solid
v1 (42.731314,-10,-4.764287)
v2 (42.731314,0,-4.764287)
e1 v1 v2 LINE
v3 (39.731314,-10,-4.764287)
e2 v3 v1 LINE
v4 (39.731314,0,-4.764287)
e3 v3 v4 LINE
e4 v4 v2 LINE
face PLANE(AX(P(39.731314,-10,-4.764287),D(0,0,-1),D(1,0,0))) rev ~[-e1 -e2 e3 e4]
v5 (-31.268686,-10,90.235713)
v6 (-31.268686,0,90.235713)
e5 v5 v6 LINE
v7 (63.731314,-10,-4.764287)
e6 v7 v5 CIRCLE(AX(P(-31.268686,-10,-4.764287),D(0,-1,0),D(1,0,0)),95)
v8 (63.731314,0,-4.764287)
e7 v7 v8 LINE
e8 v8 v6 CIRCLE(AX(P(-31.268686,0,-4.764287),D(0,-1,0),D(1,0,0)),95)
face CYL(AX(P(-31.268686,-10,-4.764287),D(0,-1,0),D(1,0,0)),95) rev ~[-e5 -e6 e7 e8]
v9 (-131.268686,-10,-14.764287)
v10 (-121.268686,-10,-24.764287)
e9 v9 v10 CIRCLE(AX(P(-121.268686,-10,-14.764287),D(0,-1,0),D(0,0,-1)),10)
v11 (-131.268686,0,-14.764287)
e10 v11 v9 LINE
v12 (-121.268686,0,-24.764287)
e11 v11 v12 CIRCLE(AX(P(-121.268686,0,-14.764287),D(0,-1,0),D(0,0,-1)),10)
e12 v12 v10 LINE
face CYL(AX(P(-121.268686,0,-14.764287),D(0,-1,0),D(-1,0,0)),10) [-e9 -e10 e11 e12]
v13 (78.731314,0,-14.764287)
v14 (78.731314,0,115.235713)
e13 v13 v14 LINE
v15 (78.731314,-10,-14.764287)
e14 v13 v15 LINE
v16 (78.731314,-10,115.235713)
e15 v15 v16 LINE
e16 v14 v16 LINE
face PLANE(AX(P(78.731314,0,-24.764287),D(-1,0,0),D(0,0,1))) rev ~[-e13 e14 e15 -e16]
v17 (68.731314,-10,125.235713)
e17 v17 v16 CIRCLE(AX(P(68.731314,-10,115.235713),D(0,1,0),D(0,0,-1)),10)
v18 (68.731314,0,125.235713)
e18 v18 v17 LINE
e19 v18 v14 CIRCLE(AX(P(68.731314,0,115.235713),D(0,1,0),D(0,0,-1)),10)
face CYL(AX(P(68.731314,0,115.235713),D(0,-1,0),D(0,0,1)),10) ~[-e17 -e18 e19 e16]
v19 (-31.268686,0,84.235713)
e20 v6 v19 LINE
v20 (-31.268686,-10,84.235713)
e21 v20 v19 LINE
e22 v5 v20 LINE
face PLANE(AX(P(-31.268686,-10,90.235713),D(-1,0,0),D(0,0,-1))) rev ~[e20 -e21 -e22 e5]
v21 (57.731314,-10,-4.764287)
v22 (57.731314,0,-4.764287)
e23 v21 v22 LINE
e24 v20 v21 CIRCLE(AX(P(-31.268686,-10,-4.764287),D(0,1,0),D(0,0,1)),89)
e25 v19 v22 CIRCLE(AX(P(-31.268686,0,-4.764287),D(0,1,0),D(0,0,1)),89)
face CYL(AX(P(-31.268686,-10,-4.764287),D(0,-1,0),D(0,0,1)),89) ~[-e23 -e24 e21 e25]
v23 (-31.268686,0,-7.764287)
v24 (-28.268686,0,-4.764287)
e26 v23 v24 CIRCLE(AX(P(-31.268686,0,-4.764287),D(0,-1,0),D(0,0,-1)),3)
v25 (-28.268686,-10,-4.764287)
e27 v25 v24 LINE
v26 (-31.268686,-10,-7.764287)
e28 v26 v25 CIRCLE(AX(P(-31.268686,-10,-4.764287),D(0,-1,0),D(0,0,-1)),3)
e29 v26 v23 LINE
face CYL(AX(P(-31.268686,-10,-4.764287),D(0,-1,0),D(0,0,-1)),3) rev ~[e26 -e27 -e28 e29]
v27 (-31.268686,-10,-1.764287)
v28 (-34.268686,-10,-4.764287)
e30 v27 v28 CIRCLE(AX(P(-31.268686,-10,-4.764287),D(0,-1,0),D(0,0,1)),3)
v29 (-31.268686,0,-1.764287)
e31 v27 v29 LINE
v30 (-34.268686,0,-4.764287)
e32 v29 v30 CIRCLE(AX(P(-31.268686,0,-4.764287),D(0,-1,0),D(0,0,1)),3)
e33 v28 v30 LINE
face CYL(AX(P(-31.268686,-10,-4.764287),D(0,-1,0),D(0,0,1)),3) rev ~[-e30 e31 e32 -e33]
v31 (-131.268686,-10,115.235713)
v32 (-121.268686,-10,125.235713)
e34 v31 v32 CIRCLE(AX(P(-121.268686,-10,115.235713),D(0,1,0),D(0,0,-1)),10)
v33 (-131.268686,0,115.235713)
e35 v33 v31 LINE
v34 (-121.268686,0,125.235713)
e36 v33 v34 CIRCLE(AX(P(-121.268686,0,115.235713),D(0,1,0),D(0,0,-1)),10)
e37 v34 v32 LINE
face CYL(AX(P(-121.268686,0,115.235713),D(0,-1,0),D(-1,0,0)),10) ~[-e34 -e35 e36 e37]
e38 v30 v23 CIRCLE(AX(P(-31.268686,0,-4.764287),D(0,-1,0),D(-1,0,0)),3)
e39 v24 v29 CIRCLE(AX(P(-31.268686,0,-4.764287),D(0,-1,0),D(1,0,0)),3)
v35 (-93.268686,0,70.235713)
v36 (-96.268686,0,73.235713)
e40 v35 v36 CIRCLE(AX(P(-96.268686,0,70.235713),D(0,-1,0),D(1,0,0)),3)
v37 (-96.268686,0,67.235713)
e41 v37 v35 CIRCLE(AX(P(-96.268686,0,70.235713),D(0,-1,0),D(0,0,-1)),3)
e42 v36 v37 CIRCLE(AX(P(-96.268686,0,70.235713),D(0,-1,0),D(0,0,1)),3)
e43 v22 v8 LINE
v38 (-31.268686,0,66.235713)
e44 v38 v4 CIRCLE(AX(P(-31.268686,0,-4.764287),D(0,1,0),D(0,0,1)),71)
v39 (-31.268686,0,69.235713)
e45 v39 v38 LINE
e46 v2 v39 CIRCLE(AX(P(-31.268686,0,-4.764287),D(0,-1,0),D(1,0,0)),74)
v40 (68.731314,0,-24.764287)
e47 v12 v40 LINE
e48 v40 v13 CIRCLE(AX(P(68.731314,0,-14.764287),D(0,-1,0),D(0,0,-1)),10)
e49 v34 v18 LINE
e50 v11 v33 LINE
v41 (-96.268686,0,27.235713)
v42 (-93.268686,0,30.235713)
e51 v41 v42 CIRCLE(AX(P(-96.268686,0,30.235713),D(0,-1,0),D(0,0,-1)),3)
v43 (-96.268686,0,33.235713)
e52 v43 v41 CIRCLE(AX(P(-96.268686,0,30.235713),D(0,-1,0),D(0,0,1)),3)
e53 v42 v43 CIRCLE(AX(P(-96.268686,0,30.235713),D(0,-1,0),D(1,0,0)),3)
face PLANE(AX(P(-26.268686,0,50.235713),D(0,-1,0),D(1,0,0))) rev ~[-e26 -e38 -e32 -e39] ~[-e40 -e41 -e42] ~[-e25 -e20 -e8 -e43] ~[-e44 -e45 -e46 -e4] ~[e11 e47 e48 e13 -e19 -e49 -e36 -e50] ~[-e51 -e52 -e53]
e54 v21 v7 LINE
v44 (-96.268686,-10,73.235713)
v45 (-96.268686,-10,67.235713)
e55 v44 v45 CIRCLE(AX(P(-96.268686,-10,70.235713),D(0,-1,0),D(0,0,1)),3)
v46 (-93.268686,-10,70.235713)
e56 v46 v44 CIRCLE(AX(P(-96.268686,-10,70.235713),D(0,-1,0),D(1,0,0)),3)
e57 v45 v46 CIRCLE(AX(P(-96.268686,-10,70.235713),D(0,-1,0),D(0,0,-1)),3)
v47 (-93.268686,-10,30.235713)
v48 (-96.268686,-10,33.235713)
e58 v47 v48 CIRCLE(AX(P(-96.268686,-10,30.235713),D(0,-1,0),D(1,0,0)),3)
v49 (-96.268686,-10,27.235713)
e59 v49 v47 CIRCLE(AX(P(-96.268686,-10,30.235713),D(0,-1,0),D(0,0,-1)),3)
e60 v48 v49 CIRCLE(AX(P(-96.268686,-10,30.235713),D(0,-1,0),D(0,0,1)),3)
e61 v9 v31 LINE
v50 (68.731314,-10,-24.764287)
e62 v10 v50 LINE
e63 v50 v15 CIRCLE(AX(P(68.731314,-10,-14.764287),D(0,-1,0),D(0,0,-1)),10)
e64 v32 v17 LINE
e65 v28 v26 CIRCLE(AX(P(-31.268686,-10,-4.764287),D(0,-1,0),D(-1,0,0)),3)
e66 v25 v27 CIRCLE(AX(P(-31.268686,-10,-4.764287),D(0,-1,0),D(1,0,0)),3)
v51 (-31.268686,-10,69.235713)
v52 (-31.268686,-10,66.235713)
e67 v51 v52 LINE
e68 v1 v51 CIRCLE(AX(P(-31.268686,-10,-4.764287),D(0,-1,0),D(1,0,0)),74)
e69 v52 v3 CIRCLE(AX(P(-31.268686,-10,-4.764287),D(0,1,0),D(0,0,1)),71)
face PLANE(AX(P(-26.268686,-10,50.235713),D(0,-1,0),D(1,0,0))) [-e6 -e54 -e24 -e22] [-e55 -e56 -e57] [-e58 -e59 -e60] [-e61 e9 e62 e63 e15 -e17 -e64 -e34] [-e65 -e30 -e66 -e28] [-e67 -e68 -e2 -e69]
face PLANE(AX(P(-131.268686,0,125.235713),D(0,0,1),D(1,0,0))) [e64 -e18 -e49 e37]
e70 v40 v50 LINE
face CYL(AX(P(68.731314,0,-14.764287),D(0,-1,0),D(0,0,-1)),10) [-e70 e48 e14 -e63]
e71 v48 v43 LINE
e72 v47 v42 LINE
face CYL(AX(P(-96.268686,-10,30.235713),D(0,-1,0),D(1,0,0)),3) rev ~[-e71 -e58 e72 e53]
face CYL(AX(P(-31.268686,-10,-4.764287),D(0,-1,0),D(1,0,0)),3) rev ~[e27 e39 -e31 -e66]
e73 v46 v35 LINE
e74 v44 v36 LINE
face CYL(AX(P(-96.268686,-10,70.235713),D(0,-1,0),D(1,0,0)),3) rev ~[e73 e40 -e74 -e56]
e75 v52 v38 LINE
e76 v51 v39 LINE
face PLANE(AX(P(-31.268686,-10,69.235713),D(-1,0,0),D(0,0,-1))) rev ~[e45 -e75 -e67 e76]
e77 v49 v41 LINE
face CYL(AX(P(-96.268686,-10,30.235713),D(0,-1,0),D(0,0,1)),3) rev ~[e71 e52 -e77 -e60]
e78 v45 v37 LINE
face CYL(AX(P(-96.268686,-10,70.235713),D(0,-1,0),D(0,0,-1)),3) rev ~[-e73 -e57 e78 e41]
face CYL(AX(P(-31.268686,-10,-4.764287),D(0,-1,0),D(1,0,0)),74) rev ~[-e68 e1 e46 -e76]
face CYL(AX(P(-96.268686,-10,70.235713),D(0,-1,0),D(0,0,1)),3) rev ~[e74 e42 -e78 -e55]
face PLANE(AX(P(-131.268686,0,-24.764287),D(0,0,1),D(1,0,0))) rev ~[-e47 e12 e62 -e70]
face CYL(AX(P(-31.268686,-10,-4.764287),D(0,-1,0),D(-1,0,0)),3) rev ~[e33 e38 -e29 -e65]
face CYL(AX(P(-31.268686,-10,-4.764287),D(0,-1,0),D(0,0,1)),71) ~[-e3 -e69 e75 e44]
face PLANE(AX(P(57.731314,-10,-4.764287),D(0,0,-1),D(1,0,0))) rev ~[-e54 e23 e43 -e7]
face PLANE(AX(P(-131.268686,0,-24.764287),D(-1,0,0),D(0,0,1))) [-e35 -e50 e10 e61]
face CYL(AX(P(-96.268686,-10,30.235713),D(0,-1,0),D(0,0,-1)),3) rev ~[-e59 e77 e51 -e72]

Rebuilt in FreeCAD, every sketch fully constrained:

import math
import FreeCAD as App
import Part
import Sketcher
from FreeCAD import Vector
Q = App.Units.Quantity


def edges_at(feature, points):
    """Names of the edges that pass closest to the given points."""
    edges = feature.Shape.Edges
    near = lambda p: min(range(len(edges)), key=lambda i: edges[i].distToShape(Part.Vertex(*p))[0])
    return sorted({f"Edge{near(p) + 1}" for p in points})

doc = App.newDocument("Part")
params = doc.addObject("Spreadsheet::Sheet", "Params")
for row, (alias, value) in enumerate([
    ("sketch1_width", "210 mm"),
    ("sketch1_height", "150 mm"),
    ("pad1_length", "10 mm"),
    ("fillet_radius", "10 mm"),
    ("fillet2_radius", "10 mm"),
    ("fillet3_radius", "10 mm"),
    ("sketch2_radius", "3 mm"),
    ("sketch2_radius2", "71 mm"),
    ("sketch2_radius3", "74 mm"),
    ("sketch2_radius4", "89 mm"),
    ("sketch2_radius5", "95 mm"),
    ("pocket1_length", "10 mm"),
], start=1):
    params.set(f"A{row}", alias)
    params.set(f"B{row}", "=" + value)
    params.setAlias(f"B{row}", alias)

body = doc.addObject("PartDesign::Body", "Body")

# Sketch on XZ plane
sketch1 = body.newObject("Sketcher::SketchObject", "Sketch")
sketch1.AttachmentSupport = (doc.getObject("XZ_Plane"), [""])
sketch1.MapMode = "FlatFace"
sketch1.addGeometry(Part.LineSegment(Vector(-131, 125, 0), Vector(-131, -25, 0)), False)
sketch1.addGeometry(Part.LineSegment(Vector(-131, -25, 0), Vector(79, -25, 0)), False)
sketch1.addGeometry(Part.LineSegment(Vector(79, -25, 0), Vector(79, 125, 0)), False)
sketch1.addGeometry(Part.LineSegment(Vector(79, 125, 0), Vector(-131, 125, 0)), False)
sketch1.addConstraint(Sketcher.Constraint("Coincident", 0, 2, 1, 1))
sketch1.addConstraint(Sketcher.Constraint("Coincident", 1, 2, 2, 1))
sketch1.addConstraint(Sketcher.Constraint("Coincident", 2, 2, 3, 1))
sketch1.addConstraint(Sketcher.Constraint("Coincident", 3, 2, 0, 1))
sketch1.addConstraint(Sketcher.Constraint("Vertical", 0))
sketch1.addConstraint(Sketcher.Constraint("Horizontal", 1))
sketch1.addConstraint(Sketcher.Constraint("Vertical", 2))
sketch1.addConstraint(Sketcher.Constraint("Horizontal", 3))
sketch1.addConstraint(Sketcher.Constraint("DistanceX", 1, 1, 1, 2, Q("210 mm")))
sketch1.addConstraint(Sketcher.Constraint("DistanceY", 0, 2, 0, 1, Q("150 mm")))
sketch1.addConstraint(Sketcher.Constraint("DistanceX", 0, 2, -1, 1, Q("131.268686 mm")))
sketch1.addConstraint(Sketcher.Constraint("DistanceY", 0, 2, -1, 1, Q("24.764287 mm")))
sketch1.setExpression("Constraints[8]", "Params.sketch1_width")
sketch1.setExpression("Constraints[9]", "Params.sketch1_height")
pad1 = body.newObject("PartDesign::Pad", "Pad")
pad1.Profile = sketch1
pad1.setExpression("Length", "Params.pad1_length")
doc.recompute()

fillet = body.newObject("PartDesign::Fillet", "Fillet")
fillet.Base = (pad1, edges_at(pad1, [(-131.269, -5, 125.236)]))
fillet.setExpression("Radius", "Params.fillet_radius")
doc.recompute()

fillet2 = body.newObject("PartDesign::Fillet", "Fillet001")
fillet2.Base = (fillet, edges_at(fillet, [(-131.269, -5, -24.764)]))
fillet2.setExpression("Radius", "Params.fillet2_radius")
doc.recompute()

fillet3 = body.newObject("PartDesign::Fillet", "Fillet002")
fillet3.Base = (fillet2, edges_at(fillet2, [(78.731, -5, -24.764), (78.731, -5, 125.236)]))
fillet3.setExpression("Radius", "Params.fillet3_radius")

# Sketch on XZ plane
sketch2 = body.newObject("Sketcher::SketchObject", "Sketch001")
sketch2.AttachmentSupport = (doc.getObject("XZ_Plane"), [""])
sketch2.MapMode = "FlatFace"
sketch2.AttachmentOffset = App.Placement(Vector(0, 0, 10), App.Rotation())
sketch2.addGeometry(Part.ArcOfCircle(Part.Circle(Vector(-31.3, -4.8, 0), Vector(0, 0, 1), 3), math.radians(90), math.radians(180)), False)
sketch2.addGeometry(Part.ArcOfCircle(Part.Circle(Vector(-31.3, -4.8, 0), Vector(0, 0, 1), 3), math.radians(180), math.radians(270)), False)
sketch2.addGeometry(Part.ArcOfCircle(Part.Circle(Vector(-31.3, -4.8, 0), Vector(0, 0, 1), 3), math.radians(-90), math.radians(0)), False)
sketch2.addGeometry(Part.ArcOfCircle(Part.Circle(Vector(-31.3, -4.8, 0), Vector(0, 0, 1), 3), math.radians(0), math.radians(90)), False)
sketch2.addGeometry(Part.ArcOfCircle(Part.Circle(Vector(-31.3, -4.8, 0), Vector(0, 0, 1), 71), math.radians(0), math.radians(90)), False)
sketch2.addGeometry(Part.LineSegment(Vector(39.7, -4.8, 0), Vector(42.7, -4.8, 0)), False)
sketch2.addGeometry(Part.ArcOfCircle(Part.Circle(Vector(-31.3, -4.8, 0), Vector(0, 0, 1), 74), math.radians(0), math.radians(90)), False)
sketch2.addGeometry(Part.LineSegment(Vector(-31.3, 69.2, 0), Vector(-31.3, 66.2, 0)), False)
sketch2.addGeometry(Part.ArcOfCircle(Part.Circle(Vector(-31.3, -4.8, 0), Vector(0, 0, 1), 89), math.radians(0), math.radians(90)), False)
sketch2.addGeometry(Part.LineSegment(Vector(57.7, -4.8, 0), Vector(63.7, -4.8, 0)), False)
sketch2.addGeometry(Part.ArcOfCircle(Part.Circle(Vector(-31.3, -4.8, 0), Vector(0, 0, 1), 95), math.radians(0), math.radians(90)), False)
sketch2.addGeometry(Part.LineSegment(Vector(-31.3, 90.2, 0), Vector(-31.3, 84.2, 0)), False)
sketch2.addGeometry(Part.ArcOfCircle(Part.Circle(Vector(-96.3, 70.2, 0), Vector(0, 0, 1), 3), math.radians(90), math.radians(270)), False)
sketch2.addGeometry(Part.ArcOfCircle(Part.Circle(Vector(-96.3, 70.2, 0), Vector(0, 0, 1), 3), math.radians(-90), math.radians(0)), False)
sketch2.addGeometry(Part.ArcOfCircle(Part.Circle(Vector(-96.3, 70.2, 0), Vector(0, 0, 1), 3), math.radians(0), math.radians(90)), False)
sketch2.addGeometry(Part.ArcOfCircle(Part.Circle(Vector(-96.3, 30.2, 0), Vector(0, 0, 1), 3), math.radians(90), math.radians(270)), False)
sketch2.addGeometry(Part.ArcOfCircle(Part.Circle(Vector(-96.3, 30.2, 0), Vector(0, 0, 1), 3), math.radians(-90), math.radians(0)), False)
sketch2.addGeometry(Part.ArcOfCircle(Part.Circle(Vector(-96.3, 30.2, 0), Vector(0, 0, 1), 3), math.radians(0), math.radians(90)), False)
sketch2.addConstraint(Sketcher.Constraint("Tangent", 0, 2, 1, 1))
sketch2.addConstraint(Sketcher.Constraint("Tangent", 1, 2, 2, 1))
sketch2.addConstraint(Sketcher.Constraint("Tangent", 2, 2, 3, 1))
sketch2.addConstraint(Sketcher.Constraint("Tangent", 3, 2, 0, 1))
sketch2.addConstraint(Sketcher.Constraint("Coincident", 4, 1, 5, 1))
sketch2.addConstraint(Sketcher.Constraint("Coincident", 5, 2, 6, 1))
sketch2.addConstraint(Sketcher.Constraint("Coincident", 6, 2, 7, 1))
sketch2.addConstraint(Sketcher.Constraint("Coincident", 7, 2, 4, 2))
sketch2.addConstraint(Sketcher.Constraint("Coincident", 8, 1, 9, 1))
sketch2.addConstraint(Sketcher.Constraint("Coincident", 9, 2, 10, 1))
sketch2.addConstraint(Sketcher.Constraint("Coincident", 10, 2, 11, 1))
sketch2.addConstraint(Sketcher.Constraint("Coincident", 11, 2, 8, 2))
sketch2.addConstraint(Sketcher.Constraint("Tangent", 12, 2, 13, 1))
sketch2.addConstraint(Sketcher.Constraint("Tangent", 13, 2, 14, 1))
sketch2.addConstraint(Sketcher.Constraint("Tangent", 14, 2, 12, 1))
sketch2.addConstraint(Sketcher.Constraint("Tangent", 15, 2, 16, 1))
sketch2.addConstraint(Sketcher.Constraint("Tangent", 16, 2, 17, 1))
sketch2.addConstraint(Sketcher.Constraint("Tangent", 17, 2, 15, 1))
sketch2.addConstraint(Sketcher.Constraint("Horizontal", 5))
sketch2.addConstraint(Sketcher.Constraint("Vertical", 7))
sketch2.addConstraint(Sketcher.Constraint("Horizontal", 9))
sketch2.addConstraint(Sketcher.Constraint("Vertical", 11))
sketch2.addConstraint(Sketcher.Constraint("Coincident", 4, 3, 0, 3))
sketch2.addConstraint(Sketcher.Constraint("Coincident", 6, 3, 0, 3))
sketch2.addConstraint(Sketcher.Constraint("Coincident", 8, 3, 0, 3))
sketch2.addConstraint(Sketcher.Constraint("Coincident", 10, 3, 0, 3))
sketch2.addConstraint(Sketcher.Constraint("Equal", 0, 1))
sketch2.addConstraint(Sketcher.Constraint("Equal", 3, 12))
sketch2.addConstraint(Sketcher.Constraint("Equal", 14, 15))
sketch2.addConstraint(Sketcher.Constraint("Horizontal", 10, 3, 0, 2))
sketch2.addConstraint(Sketcher.Constraint("Horizontal", 0, 2, 2, 2))
sketch2.addConstraint(Sketcher.Constraint("Horizontal", 2, 2, 4, 1))
sketch2.addConstraint(Sketcher.Constraint("Horizontal", 5, 2, 8, 1))
sketch2.addConstraint(Sketcher.Constraint("Horizontal", 14, 3, 13, 2))
sketch2.addConstraint(Sketcher.Constraint("Horizontal", 17, 3, 16, 2))
sketch2.addConstraint(Sketcher.Constraint("Vertical", 14, 3, 15, 3))
sketch2.addConstraint(Sketcher.Constraint("Vertical", 10, 3, 1, 2))
sketch2.addConstraint(Sketcher.Constraint("Vertical", 1, 2, 3, 2))
sketch2.addConstraint(Sketcher.Constraint("Vertical", 3, 2, 6, 2))
sketch2.addConstraint(Sketcher.Constraint("Vertical", 7, 2, 10, 2))
sketch2.addConstraint(Sketcher.Constraint("Vertical", 17, 3, 12, 2))
sketch2.addConstraint(Sketcher.Constraint("Vertical", 12, 2, 14, 2))
sketch2.addConstraint(Sketcher.Constraint("Vertical", 14, 2, 15, 2))
sketch2.addConstraint(Sketcher.Constraint("Vertical", 15, 2, 17, 2))
sketch2.addConstraint(Sketcher.Constraint("Radius", 0, Q("3 mm")))
sketch2.addConstraint(Sketcher.Constraint("Radius", 4, Q("71 mm")))
sketch2.addConstraint(Sketcher.Constraint("Radius", 6, Q("74 mm")))
sketch2.addConstraint(Sketcher.Constraint("Radius", 8, Q("89 mm")))
sketch2.addConstraint(Sketcher.Constraint("Radius", 10, Q("95 mm")))
sketch2.addConstraint(Sketcher.Constraint("DistanceX", 12, 3, 1, 3, Q("65 mm")))
sketch2.addConstraint(Sketcher.Constraint("DistanceY", 1, 3, 12, 3, Q("75 mm")))
sketch2.addConstraint(Sketcher.Constraint("DistanceY", 15, 3, 13, 3, Q("40 mm")))
sketch2.addConstraint(Sketcher.Constraint("DistanceX", 0, 3, -1, 1, Q("31.268686 mm")))
sketch2.addConstraint(Sketcher.Constraint("DistanceY", 0, 3, -1, 1, Q("4.764287 mm")))
sketch2.setExpression("Constraints[44]", "Params.sketch2_radius")
sketch2.setExpression("Constraints[45]", "Params.sketch2_radius2")
sketch2.setExpression("Constraints[46]", "Params.sketch2_radius3")
sketch2.setExpression("Constraints[47]", "Params.sketch2_radius4")
sketch2.setExpression("Constraints[48]", "Params.sketch2_radius5")
pocket1 = body.newObject("PartDesign::Pocket", "Pocket")
pocket1.Profile = sketch2
pocket1.setExpression("Length", "Params.pocket1_length")

doc.recompute()
